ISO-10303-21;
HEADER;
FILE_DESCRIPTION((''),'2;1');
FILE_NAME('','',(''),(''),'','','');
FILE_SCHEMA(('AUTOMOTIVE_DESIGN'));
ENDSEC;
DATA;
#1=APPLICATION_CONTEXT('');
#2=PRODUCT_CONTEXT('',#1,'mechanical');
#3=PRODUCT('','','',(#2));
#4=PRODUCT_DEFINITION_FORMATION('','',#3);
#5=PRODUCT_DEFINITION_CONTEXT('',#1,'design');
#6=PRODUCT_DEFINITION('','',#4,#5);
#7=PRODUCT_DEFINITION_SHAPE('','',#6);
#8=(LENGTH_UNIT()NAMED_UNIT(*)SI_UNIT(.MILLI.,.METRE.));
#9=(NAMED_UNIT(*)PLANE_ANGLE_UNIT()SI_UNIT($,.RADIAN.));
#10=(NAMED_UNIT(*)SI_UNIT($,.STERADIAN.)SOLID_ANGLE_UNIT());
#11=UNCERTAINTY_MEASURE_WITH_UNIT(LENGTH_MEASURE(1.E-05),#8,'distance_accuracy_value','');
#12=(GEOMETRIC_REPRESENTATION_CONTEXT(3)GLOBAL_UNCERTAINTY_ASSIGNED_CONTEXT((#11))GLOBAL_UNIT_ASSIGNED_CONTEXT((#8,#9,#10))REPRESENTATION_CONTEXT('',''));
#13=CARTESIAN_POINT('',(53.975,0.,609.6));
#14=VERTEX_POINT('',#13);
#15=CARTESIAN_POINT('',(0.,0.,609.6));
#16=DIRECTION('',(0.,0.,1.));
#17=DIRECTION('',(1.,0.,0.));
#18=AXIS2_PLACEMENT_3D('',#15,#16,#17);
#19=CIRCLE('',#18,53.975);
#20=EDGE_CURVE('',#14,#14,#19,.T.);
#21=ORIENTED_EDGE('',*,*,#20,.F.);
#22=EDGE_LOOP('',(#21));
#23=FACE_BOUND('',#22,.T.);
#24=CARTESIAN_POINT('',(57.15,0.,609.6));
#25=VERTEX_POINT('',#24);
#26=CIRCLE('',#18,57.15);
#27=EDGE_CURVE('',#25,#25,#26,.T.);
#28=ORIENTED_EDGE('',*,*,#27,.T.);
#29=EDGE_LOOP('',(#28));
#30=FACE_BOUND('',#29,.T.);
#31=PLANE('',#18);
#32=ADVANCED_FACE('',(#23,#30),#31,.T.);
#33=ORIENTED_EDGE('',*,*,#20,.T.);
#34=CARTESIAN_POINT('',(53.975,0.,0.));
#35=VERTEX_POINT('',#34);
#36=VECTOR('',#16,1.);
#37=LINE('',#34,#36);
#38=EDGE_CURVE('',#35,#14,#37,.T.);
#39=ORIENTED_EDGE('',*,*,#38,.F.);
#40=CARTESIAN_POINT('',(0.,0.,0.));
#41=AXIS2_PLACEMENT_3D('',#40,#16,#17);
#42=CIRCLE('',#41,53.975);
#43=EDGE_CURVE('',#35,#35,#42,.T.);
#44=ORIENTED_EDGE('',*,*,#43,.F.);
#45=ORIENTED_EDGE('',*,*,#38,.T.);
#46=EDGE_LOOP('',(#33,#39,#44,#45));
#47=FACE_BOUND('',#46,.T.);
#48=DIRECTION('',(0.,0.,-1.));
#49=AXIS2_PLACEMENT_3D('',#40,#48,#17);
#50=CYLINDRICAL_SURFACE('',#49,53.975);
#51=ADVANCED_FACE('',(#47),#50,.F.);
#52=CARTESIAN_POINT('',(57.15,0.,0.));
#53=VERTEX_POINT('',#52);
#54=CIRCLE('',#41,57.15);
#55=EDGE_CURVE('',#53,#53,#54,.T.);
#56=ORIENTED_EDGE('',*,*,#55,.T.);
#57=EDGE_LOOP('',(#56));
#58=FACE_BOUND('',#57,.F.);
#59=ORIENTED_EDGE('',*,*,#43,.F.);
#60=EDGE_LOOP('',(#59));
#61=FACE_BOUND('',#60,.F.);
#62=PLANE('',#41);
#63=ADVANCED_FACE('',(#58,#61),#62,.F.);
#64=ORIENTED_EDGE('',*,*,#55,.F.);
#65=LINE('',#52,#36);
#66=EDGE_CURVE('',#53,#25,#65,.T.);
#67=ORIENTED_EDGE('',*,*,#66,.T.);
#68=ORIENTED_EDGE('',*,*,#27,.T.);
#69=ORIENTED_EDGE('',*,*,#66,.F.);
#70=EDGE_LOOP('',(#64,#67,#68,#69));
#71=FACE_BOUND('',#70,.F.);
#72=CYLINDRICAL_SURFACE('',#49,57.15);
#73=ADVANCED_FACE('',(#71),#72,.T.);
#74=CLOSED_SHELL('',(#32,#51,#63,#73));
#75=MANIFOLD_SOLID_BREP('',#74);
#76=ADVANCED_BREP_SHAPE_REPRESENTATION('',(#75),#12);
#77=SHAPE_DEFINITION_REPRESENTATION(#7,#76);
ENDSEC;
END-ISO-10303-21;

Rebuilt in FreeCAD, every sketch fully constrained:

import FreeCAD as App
import Part
import Sketcher
from FreeCAD import Vector
Q = App.Units.Quantity

doc = App.newDocument("Part")
params = doc.addObject("Spreadsheet::Sheet", "Params")
for row, (alias, value) in enumerate([
    ("sketch1_diameter", "4.5 in"),
    ("sketch1_diameter2", "4.25 in"),
    ("pad1_length", "24 in"),
], start=1):
    params.set(f"A{row}", alias)
    params.set(f"B{row}", "=" + value)
    params.setAlias(f"B{row}", alias)

body = doc.addObject("PartDesign::Body", "Body")

sketch1 = body.newObject("Sketcher::SketchObject", "Sketch")
sketch1.AttachmentSupport = (doc.getObject("XY_Plane"), [""])
sketch1.MapMode = "FlatFace"
sketch1.addGeometry([
    Part.Circle(Vector(0, 0, 0), Vector(0, 0, 1), 57),
    Part.Circle(Vector(0, 0, 0), Vector(0, 0, 1), 54),
], False)
sketch1.addConstraint([
    Sketcher.Constraint("Coincident", 0, 3, -1, 1),
    Sketcher.Constraint("Coincident", 1, 3, -1, 1),
    Sketcher.Constraint("Diameter", 0, Q("4.5 in")),
    Sketcher.Constraint("Diameter", 1, Q("4.25 in")),
])
sketch1.setExpression("Constraints[2]", "Params.sketch1_diameter")
sketch1.setExpression("Constraints[3]", "Params.sketch1_diameter2")
pad1 = body.newObject("PartDesign::Pad", "Pad")
pad1.Profile = sketch1
pad1.setExpression("Length", "Params.pad1_length")

doc.recompute()
